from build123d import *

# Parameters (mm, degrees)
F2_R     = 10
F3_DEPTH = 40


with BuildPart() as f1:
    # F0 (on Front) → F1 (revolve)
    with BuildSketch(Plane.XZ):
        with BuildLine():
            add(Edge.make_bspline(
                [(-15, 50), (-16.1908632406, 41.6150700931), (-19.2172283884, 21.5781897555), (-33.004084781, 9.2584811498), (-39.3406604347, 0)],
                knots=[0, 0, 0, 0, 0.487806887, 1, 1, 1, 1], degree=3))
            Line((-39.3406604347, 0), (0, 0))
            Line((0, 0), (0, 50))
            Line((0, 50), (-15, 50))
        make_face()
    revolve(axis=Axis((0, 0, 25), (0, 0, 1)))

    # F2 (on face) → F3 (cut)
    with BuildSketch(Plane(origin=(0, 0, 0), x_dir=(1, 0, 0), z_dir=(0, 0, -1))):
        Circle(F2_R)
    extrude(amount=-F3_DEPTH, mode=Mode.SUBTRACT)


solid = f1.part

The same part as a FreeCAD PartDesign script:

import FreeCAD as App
import Part
import Sketcher
Q = App.Units.Quantity

doc = App.newDocument("Part")
body = doc.addObject("PartDesign::Body", "Body")

# Sketch on XZ plane
sketch1 = body.newObject("Sketcher::SketchObject", "Sketch")
sketch1.AttachmentSupport = (doc.getObject("XZ_Plane"), [""])
sketch1.MapMode = "FlatFace"
sketch1.addGeometry(Part.BSplineCurve([App.Vector(-15, 50, 0), App.Vector(-16.190863, 41.61507, 0), App.Vector(-19.217228, 21.57819, 0), App.Vector(-33.004085, 9.258481, 0), App.Vector(-39.34066, 0, 0)], [4, 1, 4], [0, 0.487806887, 1], False, 3, [1, 1, 1, 1, 1], False), False)
sketch1.addGeometry(Part.LineSegment(App.Vector(-39.34066, 0, 0), App.Vector(0, 0, 0)), False)
sketch1.addGeometry(Part.LineSegment(App.Vector(0, 0, 0), App.Vector(0, 50, 0)), False)
sketch1.addGeometry(Part.LineSegment(App.Vector(0, 50, 0), App.Vector(-15, 50, 0)), False)
sketch1.addConstraint(Sketcher.Constraint("Block", 0))
sketch1.addConstraint(Sketcher.Constraint("Coincident", 0, 2, 1, 1))
sketch1.addConstraint(Sketcher.Constraint("Coincident", 1, 2, 2, 1))
sketch1.addConstraint(Sketcher.Constraint("Coincident", 2, 2, 3, 1))
sketch1.addConstraint(Sketcher.Constraint("Coincident", 3, 2, 0, 1))
sketch1.addConstraint(Sketcher.Constraint("Horizontal", 1))
sketch1.addConstraint(Sketcher.Constraint("Vertical", 2))
sketch1.addConstraint(Sketcher.Constraint("Horizontal", 3))
sketch1.addConstraint(Sketcher.Constraint("PointOnObject", 2, 2, -2))
revolution = body.newObject("PartDesign::Revolution", "Revolution")
revolution.Profile = sketch1
revolution.ReferenceAxis = (sketch1, ["V_Axis"])
revolution.Angle = 360

# Sketch on XY plane
sketch2 = body.newObject("Sketcher::SketchObject", "Sketch001")
sketch2.AttachmentSupport = (doc.getObject("XY_Plane"), [""])
sketch2.MapMode = "FlatFace"
sketch2.addGeometry(Part.Circle(App.Vector(0, 0, 0), App.Vector(0, 0, 1), 10), False)
sketch2.addConstraint(Sketcher.Constraint("Coincident", 0, 3, -1, 1))
sketch2.addConstraint(Sketcher.Constraint("Diameter", 0, Q("20 mm")))
pocket1 = body.newObject("PartDesign::Pocket", "Pocket")
pocket1.Profile = sketch2
pocket1.Length = 40
pocket1.Reversed = True

doc.recompute()
